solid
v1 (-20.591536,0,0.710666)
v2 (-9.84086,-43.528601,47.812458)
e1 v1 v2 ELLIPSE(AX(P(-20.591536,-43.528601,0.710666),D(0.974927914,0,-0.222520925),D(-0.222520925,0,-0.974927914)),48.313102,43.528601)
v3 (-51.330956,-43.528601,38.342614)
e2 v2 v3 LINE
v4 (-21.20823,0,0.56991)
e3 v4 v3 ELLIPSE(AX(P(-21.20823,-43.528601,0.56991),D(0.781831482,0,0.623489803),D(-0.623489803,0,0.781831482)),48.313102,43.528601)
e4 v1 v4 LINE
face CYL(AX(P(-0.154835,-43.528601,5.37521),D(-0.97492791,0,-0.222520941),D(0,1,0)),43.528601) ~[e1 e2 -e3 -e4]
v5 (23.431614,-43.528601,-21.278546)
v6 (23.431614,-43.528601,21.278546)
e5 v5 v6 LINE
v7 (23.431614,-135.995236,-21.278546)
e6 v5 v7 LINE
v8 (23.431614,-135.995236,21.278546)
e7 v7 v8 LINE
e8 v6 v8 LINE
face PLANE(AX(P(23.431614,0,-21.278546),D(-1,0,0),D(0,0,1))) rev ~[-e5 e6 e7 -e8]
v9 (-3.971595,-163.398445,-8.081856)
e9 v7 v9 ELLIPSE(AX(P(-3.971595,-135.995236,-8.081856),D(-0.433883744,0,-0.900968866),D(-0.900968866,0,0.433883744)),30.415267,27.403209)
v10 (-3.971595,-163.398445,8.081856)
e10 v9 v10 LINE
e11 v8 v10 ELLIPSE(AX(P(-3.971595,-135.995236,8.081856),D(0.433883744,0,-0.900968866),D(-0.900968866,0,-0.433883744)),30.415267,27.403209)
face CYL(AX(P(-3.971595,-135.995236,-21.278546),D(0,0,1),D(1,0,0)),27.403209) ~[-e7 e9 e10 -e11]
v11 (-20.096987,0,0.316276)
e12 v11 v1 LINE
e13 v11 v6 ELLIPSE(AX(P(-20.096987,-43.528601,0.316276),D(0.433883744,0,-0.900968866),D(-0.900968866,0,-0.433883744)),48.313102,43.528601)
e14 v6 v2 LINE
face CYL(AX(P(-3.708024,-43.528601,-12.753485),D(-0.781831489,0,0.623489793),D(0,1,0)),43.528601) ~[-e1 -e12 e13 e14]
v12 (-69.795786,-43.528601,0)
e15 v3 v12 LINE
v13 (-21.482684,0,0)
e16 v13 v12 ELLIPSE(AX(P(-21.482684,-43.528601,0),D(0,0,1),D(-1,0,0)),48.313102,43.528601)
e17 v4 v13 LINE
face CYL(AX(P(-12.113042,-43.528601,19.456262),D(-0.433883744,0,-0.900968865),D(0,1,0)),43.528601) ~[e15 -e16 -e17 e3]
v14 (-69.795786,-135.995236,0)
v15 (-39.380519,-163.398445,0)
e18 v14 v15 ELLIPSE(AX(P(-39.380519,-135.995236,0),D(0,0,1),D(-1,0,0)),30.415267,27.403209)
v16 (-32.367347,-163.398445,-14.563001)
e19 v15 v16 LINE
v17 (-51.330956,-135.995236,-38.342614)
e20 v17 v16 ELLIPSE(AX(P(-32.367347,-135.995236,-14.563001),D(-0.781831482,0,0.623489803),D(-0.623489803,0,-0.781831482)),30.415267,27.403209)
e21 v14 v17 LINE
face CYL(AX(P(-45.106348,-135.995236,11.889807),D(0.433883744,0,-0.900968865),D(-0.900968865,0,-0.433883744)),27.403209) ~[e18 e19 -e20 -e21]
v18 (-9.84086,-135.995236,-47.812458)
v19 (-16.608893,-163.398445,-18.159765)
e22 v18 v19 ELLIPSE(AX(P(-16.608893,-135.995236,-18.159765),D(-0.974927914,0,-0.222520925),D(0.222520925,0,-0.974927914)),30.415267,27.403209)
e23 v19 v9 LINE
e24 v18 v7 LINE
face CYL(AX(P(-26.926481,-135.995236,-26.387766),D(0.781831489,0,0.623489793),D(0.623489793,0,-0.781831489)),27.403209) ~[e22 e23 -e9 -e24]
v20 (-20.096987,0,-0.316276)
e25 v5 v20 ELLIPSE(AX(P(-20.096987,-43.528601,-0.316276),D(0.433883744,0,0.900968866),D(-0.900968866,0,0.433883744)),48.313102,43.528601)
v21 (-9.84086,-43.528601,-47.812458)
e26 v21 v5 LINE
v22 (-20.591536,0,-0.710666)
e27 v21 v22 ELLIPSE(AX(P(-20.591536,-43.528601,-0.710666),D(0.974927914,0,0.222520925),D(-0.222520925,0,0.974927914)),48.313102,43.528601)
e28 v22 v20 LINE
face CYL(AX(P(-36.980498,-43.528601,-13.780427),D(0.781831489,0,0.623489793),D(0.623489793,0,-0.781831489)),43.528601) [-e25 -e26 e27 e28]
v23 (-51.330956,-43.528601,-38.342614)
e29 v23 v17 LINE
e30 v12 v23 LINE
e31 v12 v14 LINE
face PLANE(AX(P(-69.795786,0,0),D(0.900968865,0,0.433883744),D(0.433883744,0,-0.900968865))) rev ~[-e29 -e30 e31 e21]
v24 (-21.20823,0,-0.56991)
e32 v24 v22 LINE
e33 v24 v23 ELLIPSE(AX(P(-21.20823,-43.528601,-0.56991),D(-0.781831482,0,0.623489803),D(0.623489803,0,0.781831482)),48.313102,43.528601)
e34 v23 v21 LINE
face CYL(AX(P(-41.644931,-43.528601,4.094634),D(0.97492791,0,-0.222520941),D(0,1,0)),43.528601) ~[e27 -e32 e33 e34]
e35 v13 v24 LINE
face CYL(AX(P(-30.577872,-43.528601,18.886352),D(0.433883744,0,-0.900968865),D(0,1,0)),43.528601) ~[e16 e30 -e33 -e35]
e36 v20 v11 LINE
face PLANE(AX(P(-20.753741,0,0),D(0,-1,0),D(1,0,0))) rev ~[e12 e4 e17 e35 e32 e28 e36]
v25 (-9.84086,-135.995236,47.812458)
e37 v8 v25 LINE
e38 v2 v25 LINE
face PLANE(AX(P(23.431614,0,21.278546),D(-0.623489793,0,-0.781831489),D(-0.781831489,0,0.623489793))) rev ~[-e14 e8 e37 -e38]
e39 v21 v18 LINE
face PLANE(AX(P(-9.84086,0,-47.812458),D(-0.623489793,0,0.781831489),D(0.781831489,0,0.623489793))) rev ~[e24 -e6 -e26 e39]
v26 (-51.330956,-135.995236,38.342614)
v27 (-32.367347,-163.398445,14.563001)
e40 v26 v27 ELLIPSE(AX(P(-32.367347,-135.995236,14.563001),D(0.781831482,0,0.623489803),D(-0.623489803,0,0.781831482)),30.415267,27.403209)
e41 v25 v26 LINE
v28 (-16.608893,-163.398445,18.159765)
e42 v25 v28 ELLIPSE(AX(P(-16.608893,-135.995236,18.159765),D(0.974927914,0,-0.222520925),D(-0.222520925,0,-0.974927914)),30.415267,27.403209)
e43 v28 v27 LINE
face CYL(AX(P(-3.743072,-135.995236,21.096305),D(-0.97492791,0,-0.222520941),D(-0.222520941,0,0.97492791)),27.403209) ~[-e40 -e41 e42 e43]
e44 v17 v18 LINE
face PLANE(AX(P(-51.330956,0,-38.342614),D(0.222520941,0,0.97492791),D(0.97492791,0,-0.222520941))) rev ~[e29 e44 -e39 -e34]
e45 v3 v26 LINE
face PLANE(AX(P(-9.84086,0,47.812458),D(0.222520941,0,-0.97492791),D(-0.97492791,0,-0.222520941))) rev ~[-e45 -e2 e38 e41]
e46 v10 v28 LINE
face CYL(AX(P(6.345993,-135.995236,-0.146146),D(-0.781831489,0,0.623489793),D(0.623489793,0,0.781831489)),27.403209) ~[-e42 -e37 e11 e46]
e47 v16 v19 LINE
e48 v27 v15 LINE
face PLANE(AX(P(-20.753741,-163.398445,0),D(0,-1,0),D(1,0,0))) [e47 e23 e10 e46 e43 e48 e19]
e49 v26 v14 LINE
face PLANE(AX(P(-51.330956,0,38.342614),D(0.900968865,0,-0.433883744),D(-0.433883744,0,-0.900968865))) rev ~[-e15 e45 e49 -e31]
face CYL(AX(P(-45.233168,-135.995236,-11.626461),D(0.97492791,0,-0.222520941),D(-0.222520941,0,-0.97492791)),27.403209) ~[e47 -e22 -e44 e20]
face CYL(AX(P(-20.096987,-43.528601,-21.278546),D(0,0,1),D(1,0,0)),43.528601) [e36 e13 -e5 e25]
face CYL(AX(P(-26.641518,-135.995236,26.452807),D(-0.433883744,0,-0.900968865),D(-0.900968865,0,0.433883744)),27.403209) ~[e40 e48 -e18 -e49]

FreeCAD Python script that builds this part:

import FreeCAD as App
import Part
import Sketcher
from FreeCAD import Vector


def edges_at(feature, points):
    """Names of the edges that pass closest to the given points."""
    edges = feature.Shape.Edges
    near = lambda p: min(range(len(edges)), key=lambda i: edges[i].distToShape(Part.Vertex(*p))[0])
    return sorted({f"Edge{near(p) + 1}" for p in points})


def add_polygon(sketch, points):
    """Adds a closed chain of lines whose ends are joined by coincident constraints."""
    first, n = sketch.GeometryCount, len(points)
    for a, b in zip(points, points[1:] + points[:1]):
        sketch.addGeometry(Part.LineSegment(App.Vector(*a, 0), App.Vector(*b, 0)), False)
    for i in range(n):
        sketch.addConstraint(Sketcher.Constraint("Coincident", first + i, 2, first + (i + 1) % n, 1))

doc = App.newDocument("Part")
body = doc.addObject("PartDesign::Body", "Body")

# Sketch on XZ plane
sketch1 = body.newObject("Sketcher::SketchObject", "Sketch")
sketch1.AttachmentSupport = (doc.getObject("XZ_Plane"), [""])
sketch1.MapMode = "FlatFace"
add_polygon(sketch1, [(23.431614, -21.278546), (23.431614, 21.278546), (-9.84086, 47.812458), (-51.330956, 38.342614), (-69.795786, 0), (-51.330956, -38.342614), (-9.84086, -47.812458)])  # lines 0-6
sketch1.addConstraint(Sketcher.Constraint("Vertical", 0))
sketch1.addConstraint(Sketcher.Constraint("Symmetric", 2, 2, 4, 2, -1))
sketch1.addConstraint(Sketcher.Constraint("Symmetric", 1, 2, 5, 2, -1))
sketch1.addConstraint(Sketcher.Constraint("PointOnObject", 3, 2, -1))
sketch1.addConstraint(Sketcher.Constraint("Equal", 1, 2))
sketch1.addConstraint(Sketcher.Constraint("Equal", 2, 3))
sketch1.addConstraint(Sketcher.Constraint("Equal", 5, 6))
sketch1.addConstraint(Sketcher.Constraint("DistanceY", 0, 1, 0, 2, 42.557092))
sketch1.addConstraint(Sketcher.Constraint("DistanceX", 3, 2, 0, 2, 93.2274))
sketch1.addConstraint(Sketcher.Constraint("Distance", 1, 42.557091))
sketch1.addConstraint(Sketcher.Constraint("DistanceX", 1, 2, -1, 1, 9.84086))
sketch1.addConstraint(Sketcher.Constraint("DistanceX", 2, 2, 0, 2, 74.76257))
pad1 = body.newObject("PartDesign::Pad", "Pad")
pad1.Profile = sketch1
pad1.Length = 163.398445
doc.recompute()

fillet = body.newObject("PartDesign::Fillet", "Fillet")
fillet.Base = (pad1, edges_at(pad1, [
    (-30.586, -163.398, 43.078),
    (-60.563, -163.398, 19.171),
    (-60.563, -163.398, -19.171),
    (-30.586, -163.398, -43.078),
    (6.795, -163.398, 34.546),
    (23.432, -163.398, 0),
    (6.795, -163.398, -34.546),
]))
fillet.Radius = 27.403209
doc.recompute()

fillet2 = body.newObject("PartDesign::Fillet", "Fillet001")
fillet2.Base = (fillet, edges_at(fillet, [
    (-30.586, 0, 43.078),
    (6.795, 0, 34.546),
    (23.432, 0, 0),
    (6.795, 0, -34.546),
    (-30.586, 0, -43.078),
    (-60.563, 0, 19.171),
    (-60.563, 0, -19.171),
]))
fillet2.Radius = 43.528601

doc.recompute()
